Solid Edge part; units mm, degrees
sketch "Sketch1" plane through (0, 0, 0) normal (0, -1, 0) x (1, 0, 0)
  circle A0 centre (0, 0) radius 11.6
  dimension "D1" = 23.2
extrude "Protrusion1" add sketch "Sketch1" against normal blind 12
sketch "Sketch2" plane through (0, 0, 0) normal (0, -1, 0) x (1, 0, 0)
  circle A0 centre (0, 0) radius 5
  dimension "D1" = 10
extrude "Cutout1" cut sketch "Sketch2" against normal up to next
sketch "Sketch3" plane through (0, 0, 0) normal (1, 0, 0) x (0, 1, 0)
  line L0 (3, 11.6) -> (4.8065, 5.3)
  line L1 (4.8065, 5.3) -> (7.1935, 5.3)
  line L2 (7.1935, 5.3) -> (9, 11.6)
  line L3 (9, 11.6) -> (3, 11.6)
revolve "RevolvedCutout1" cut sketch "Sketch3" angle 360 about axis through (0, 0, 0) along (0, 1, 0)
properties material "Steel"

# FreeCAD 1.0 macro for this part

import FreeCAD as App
import Part
import Sketcher
from FreeCAD import Vector
Q = App.Units.Quantity


def add_polygon(sketch, points):
    """Adds a closed chain of lines whose ends are joined by coincident constraints."""
    first, n = sketch.GeometryCount, len(points)
    for a, b in zip(points, points[1:] + points[:1]):
        sketch.addGeometry(Part.LineSegment(App.Vector(*a, 0), App.Vector(*b, 0)), False)
    for i in range(n):
        sketch.addConstraint(Sketcher.Constraint("Coincident", first + i, 2, first + (i + 1) % n, 1))

doc = App.newDocument("Part")
body = doc.addObject("PartDesign::Body", "Body")

sketch1 = body.newObject("Sketcher::SketchObject", "Sketch")
sketch1.AttachmentSupport = (doc.getObject("XZ_Plane"), [""])
sketch1.MapMode = "FlatFace"
sketch1.addGeometry(Part.Circle(Vector(0, 0, 0), Vector(0, 0, 1), 11.6), False)
sketch1.addConstraint(Sketcher.Constraint("Coincident", 0, 3, -1, 1))
sketch1.addConstraint(Sketcher.Constraint("Diameter", 0, Q("23.2 mm")))
pad1 = body.newObject("PartDesign::Pad", "Pad")
pad1.Profile = sketch1
pad1.Length = 12
pad1.Reversed = True

sketch2 = body.newObject("Sketcher::SketchObject", "Sketch001")
sketch2.AttachmentSupport = (doc.getObject("XZ_Plane"), [""])
sketch2.MapMode = "FlatFace"
sketch2.addGeometry(Part.Circle(Vector(0, 0, 0), Vector(0, 0, 1), 5), False)
sketch2.addConstraint(Sketcher.Constraint("Coincident", 0, 3, -1, 1))
sketch2.addConstraint(Sketcher.Constraint("Diameter", 0, Q("10 mm")))
pocket1 = body.newObject("PartDesign::Pocket", "Pocket")
pocket1.Profile = sketch2
pocket1.Type = "UpToFirst"

sketch3 = body.newObject("Sketcher::SketchObject", "Sketch002")
sketch3.AttachmentSupport = (doc.getObject("YZ_Plane"), [""])
sketch3.MapMode = "FlatFace"
add_polygon(sketch3, [(9, 11.6), (3, 11.6), (4.8065, 5.3), (7.1935, 5.3)])
sketch3.addConstraint(Sketcher.Constraint("Horizontal", 0))
sketch3.addConstraint(Sketcher.Constraint("Horizontal", 2))
sketch3.addConstraint(Sketcher.Constraint("Equal", 1, 3))
sketch3.addConstraint(Sketcher.Constraint("DistanceX", 0, 2, 0, 1, Q("6 mm")))
sketch3.addConstraint(Sketcher.Constraint("Angle", 1, Q("-74 deg")))
sketch3.addConstraint(Sketcher.Constraint("DistanceX", -1, 1, 0, 2, Q("3 mm")))
sketch3.addConstraint(Sketcher.Constraint("DistanceY", -1, 1, 0, 2, Q("11.6 mm")))
sketch3.addConstraint(Sketcher.Constraint("DistanceY", -1, 1, 1, 2, Q("5.3 mm")))
groove = body.newObject("PartDesign::Groove", "Groove")
groove.Profile = sketch3
groove.ReferenceAxis = (sketch3, ["H_Axis"])
groove.Angle = 360

doc.recompute()
